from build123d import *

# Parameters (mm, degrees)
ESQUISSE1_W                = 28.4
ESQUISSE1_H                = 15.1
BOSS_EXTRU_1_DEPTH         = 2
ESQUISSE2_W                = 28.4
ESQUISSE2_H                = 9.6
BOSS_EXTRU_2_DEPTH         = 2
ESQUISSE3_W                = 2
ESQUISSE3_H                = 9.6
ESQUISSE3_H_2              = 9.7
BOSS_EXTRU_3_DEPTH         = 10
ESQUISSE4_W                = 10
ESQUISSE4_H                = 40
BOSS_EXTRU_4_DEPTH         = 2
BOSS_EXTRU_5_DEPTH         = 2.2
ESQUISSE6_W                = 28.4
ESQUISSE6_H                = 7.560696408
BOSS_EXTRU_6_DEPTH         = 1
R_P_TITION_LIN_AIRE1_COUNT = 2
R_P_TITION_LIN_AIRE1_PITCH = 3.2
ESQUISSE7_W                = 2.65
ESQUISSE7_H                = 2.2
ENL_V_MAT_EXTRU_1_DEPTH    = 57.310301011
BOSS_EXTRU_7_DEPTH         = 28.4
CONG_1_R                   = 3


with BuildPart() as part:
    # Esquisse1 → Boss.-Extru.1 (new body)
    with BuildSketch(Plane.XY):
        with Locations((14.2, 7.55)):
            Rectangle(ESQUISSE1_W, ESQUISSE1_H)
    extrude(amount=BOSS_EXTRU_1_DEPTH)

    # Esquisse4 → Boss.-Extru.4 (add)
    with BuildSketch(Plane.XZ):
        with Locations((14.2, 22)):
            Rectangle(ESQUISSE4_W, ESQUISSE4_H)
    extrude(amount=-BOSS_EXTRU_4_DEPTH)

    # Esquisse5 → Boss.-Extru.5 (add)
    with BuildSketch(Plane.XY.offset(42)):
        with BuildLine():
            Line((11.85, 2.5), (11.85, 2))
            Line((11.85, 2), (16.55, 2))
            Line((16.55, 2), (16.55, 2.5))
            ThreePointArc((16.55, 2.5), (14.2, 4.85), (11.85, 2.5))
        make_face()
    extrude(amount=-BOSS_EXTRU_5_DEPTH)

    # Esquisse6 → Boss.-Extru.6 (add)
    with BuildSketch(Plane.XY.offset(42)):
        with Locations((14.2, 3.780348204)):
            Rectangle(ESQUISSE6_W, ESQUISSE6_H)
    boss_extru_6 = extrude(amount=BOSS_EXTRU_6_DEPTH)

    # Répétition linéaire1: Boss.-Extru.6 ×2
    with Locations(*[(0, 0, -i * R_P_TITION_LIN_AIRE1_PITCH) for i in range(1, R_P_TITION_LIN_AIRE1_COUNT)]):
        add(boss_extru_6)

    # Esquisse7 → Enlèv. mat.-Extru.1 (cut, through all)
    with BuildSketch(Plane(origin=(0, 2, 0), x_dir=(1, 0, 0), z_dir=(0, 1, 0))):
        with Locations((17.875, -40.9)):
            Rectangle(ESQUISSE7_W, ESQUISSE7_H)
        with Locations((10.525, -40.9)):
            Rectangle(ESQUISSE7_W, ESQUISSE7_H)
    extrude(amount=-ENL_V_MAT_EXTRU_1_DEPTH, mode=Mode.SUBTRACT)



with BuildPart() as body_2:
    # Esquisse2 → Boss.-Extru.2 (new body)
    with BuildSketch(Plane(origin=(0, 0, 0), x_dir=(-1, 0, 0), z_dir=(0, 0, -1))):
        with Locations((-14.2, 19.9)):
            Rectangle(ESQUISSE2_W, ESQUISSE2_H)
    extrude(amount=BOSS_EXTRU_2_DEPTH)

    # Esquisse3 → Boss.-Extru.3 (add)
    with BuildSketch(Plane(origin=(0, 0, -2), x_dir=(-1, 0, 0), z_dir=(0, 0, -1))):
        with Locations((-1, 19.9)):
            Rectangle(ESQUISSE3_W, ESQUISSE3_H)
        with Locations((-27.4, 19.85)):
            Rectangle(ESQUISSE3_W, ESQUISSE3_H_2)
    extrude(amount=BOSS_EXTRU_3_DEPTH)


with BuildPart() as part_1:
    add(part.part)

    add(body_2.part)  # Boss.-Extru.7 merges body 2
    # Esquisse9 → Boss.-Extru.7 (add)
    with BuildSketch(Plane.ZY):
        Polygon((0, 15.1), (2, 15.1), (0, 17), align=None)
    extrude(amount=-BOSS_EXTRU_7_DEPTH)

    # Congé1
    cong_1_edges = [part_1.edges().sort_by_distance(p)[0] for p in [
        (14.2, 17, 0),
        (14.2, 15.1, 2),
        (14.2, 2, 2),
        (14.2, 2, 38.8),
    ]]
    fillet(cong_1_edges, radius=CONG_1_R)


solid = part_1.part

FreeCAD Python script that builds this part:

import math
import FreeCAD as App
import Part
import Sketcher

V = App.Vector


def edges_at(feature, points):
    """Names of the edges that pass closest to the given points."""
    edges = feature.Shape.Edges
    near = lambda p: min(range(len(edges)), key=lambda i: edges[i].distToShape(Part.Vertex(*p))[0])
    return sorted({f"Edge{near(p) + 1}" for p in points})


def add_polygon(sketch, points):
    """Adds a closed chain of lines whose ends are joined by coincident constraints."""
    first, n = sketch.GeometryCount, len(points)
    for a, b in zip(points, points[1:] + points[:1]):
        sketch.addGeometry(Part.LineSegment(App.Vector(*a, 0), App.Vector(*b, 0)), False)
    for i in range(n):
        sketch.addConstraint(Sketcher.Constraint("Coincident", first + i, 2, first + (i + 1) % n, 1))

doc = App.newDocument("Part")
body = doc.addObject("PartDesign::Body", "Body")

# Sketch on XY plane
sketch1 = body.newObject("Sketcher::SketchObject", "Sketch")
sketch1.AttachmentSupport = (doc.getObject("XY_Plane"), [""])
sketch1.MapMode = "FlatFace"
add_polygon(sketch1, [(0, 15), (0, 0), (28, 0), (28, 15)])  # lines 0-3
sketch1.addConstraint([
    Sketcher.Constraint("Vertical", 0),
    Sketcher.Constraint("Horizontal", 1),
    Sketcher.Constraint("Vertical", 2),
    Sketcher.Constraint("Horizontal", 3),
    Sketcher.Constraint("Coincident", 0, 2, -1, 1),
    Sketcher.Constraint("DistanceX", 1, 1, 1, 2, 28.4),
    Sketcher.Constraint("DistanceY", 0, 2, 0, 1, 15.1),
])
pad1 = body.newObject("PartDesign::Pad", "Pad")
pad1.Profile = sketch1
pad1.Length = 2

# Sketch on XZ plane
sketch2 = body.newObject("Sketcher::SketchObject", "Sketch001")
sketch2.AttachmentSupport = (doc.getObject("XZ_Plane"), [""])
sketch2.MapMode = "FlatFace"
add_polygon(sketch2, [(9, 42), (9, 2), (19, 2), (19, 42)])  # lines 0-3
sketch2.addConstraint([
    Sketcher.Constraint("Vertical", 0),
    Sketcher.Constraint("Horizontal", 1),
    Sketcher.Constraint("Vertical", 2),
    Sketcher.Constraint("Horizontal", 3),
    Sketcher.Constraint("DistanceX", 1, 1, 1, 2, 10.0),
    Sketcher.Constraint("DistanceY", 0, 2, 0, 1, 40.0),
    Sketcher.Constraint("DistanceY", -1, 1, 0, 2, 2.0),
    Sketcher.Constraint("DistanceX", -1, 1, 0, 2, 9.2),
])
pad2 = body.newObject("PartDesign::Pad", "Pad001")
pad2.Profile = sketch2
pad2.Length = 2
pad2.Reversed = True

# Sketch on XY plane
sketch3 = body.newObject("Sketcher::SketchObject", "Sketch002")
sketch3.AttachmentSupport = (doc.getObject("XY_Plane"), [""])
sketch3.MapMode = "FlatFace"
sketch3.AttachmentOffset = App.Placement(V(0, 0, 42), App.Rotation())
sketch3.addGeometry([
    Part.LineSegment(V(11.8, 2.5, 0), V(11.8, 2, 0)),
    Part.LineSegment(V(11.8, 2, 0), V(16.6, 2, 0)),
    Part.LineSegment(V(16.6, 2, 0), V(16.6, 2.5, 0)),
    Part.ArcOfCircle(Part.Circle(V(14.2, 2.5, 0), V(0, 0, 1), 2.4), math.radians(0), math.radians(180)),
], False)
sketch3.addConstraint([
    Sketcher.Constraint("Coincident", 0, 2, 1, 1),
    Sketcher.Constraint("Coincident", 1, 2, 2, 1),
    Sketcher.Constraint("Tangent", 2, 2, 3, 1),
    Sketcher.Constraint("Tangent", 3, 2, 0, 1),
    Sketcher.Constraint("Vertical", 0),
    Sketcher.Constraint("Horizontal", 1),
    Sketcher.Constraint("Vertical", 2),
    Sketcher.Constraint("Radius", 3, 2.35),
    Sketcher.Constraint("DistanceY", 0, 2, 0, 1, 0.5),
    Sketcher.Constraint("DistanceY", -1, 1, 0, 2, 2.0),
    Sketcher.Constraint("DistanceX", -1, 1, 3, 3, 14.2),
])
pad3 = body.newObject("PartDesign::Pad", "Pad002")
pad3.Profile = sketch3
pad3.Length = 2.2
pad3.Reversed = True

# Sketch on XY plane
sketch4 = body.newObject("Sketcher::SketchObject", "Sketch003")
sketch4.AttachmentSupport = (doc.getObject("XY_Plane"), [""])
sketch4.MapMode = "FlatFace"
sketch4.AttachmentOffset = App.Placement(V(0, 0, 42), App.Rotation())
add_polygon(sketch4, [(0, 8), (0, 0), (28, 0), (28, 8)])  # lines 0-3
sketch4.addConstraint([
    Sketcher.Constraint("Vertical", 0),
    Sketcher.Constraint("Horizontal", 1),
    Sketcher.Constraint("Vertical", 2),
    Sketcher.Constraint("Horizontal", 3),
    Sketcher.Constraint("Coincident", 0, 2, -1, 1),
    Sketcher.Constraint("DistanceX", 1, 1, 1, 2, 28.4),
    Sketcher.Constraint("DistanceY", 0, 2, 0, 1, 7.560696),
])
pad4 = body.newObject("PartDesign::Pad", "Pad003")
pad4.Profile = sketch4
pad4.Length = 1
doc.recompute()

linearpattern = body.newObject("PartDesign::LinearPattern", "LinearPattern")
linearpattern.Originals = [pad4]
linearpattern.Direction = (doc.getObject("Z_Axis"), [""])
linearpattern.Mode = "offset"
linearpattern.Offset = 3.2
linearpattern.Occurrences = 2
linearpattern.Reversed = True
body.Tip = linearpattern

# Sketch on XZ plane
sketch5 = body.newObject("Sketcher::SketchObject", "Sketch004")
sketch5.AttachmentSupport = (doc.getObject("XZ_Plane"), [""])
sketch5.MapMode = "FlatFace"
sketch5.AttachmentOffset = App.Placement(V(0, 0, -2), App.Rotation())
add_polygon(sketch5, [(16.6, 39.8), (16.6, 42), (19.2, 42), (19.2, 39.8)])  # lines 0-3
add_polygon(sketch5, [(9.2, 39.8), (9.2, 42), (11.8, 42), (11.8, 39.8)])  # lines 4-7
sketch5.addConstraint([
    Sketcher.Constraint("Vertical", 0),
    Sketcher.Constraint("Horizontal", 1),
    Sketcher.Constraint("Vertical", 2),
    Sketcher.Constraint("Horizontal", 3),
    Sketcher.Constraint("Vertical", 4),
    Sketcher.Constraint("Horizontal", 5),
    Sketcher.Constraint("Vertical", 6),
    Sketcher.Constraint("Horizontal", 7),
    Sketcher.Constraint("Horizontal", 1, 2, 4, 2),
    Sketcher.Constraint("Horizontal", 3, 2, 6, 2),
    Sketcher.Constraint("Equal", 3, 5),
    Sketcher.Constraint("DistanceY", 0, 1, 0, 2, 2.2),
    Sketcher.Constraint("DistanceY", -1, 1, 0, 2, 42.0),
    Sketcher.Constraint("DistanceX", 4, 2, 1, 2, 10.0),
    Sketcher.Constraint("DistanceX", 1, 1, 1, 2, 2.65),
    Sketcher.Constraint("DistanceX", -1, 1, 1, 2, 19.2),
])
pocket1 = body.newObject("PartDesign::Pocket", "Pocket")
pocket1.Profile = sketch5
pocket1.Type = "ThroughAll"
pocket1.Reversed = True
body2 = doc.addObject("PartDesign::Body", "Body001")

# Sketch on XY plane
sketch6 = body2.newObject("Sketcher::SketchObject", "Sketch005")
sketch6.AttachmentSupport = (doc.getObject("XY_Plane001"), [""])
sketch6.MapMode = "FlatFace"
add_polygon(sketch6, [(28, 25), (28, 15), (0, 15), (0, 25)])  # lines 0-3
sketch6.addConstraint([
    Sketcher.Constraint("Vertical", 0),
    Sketcher.Constraint("Horizontal", 1),
    Sketcher.Constraint("Vertical", 2),
    Sketcher.Constraint("Horizontal", 3),
    Sketcher.Constraint("PointOnObject", 1, 2, -2),
    Sketcher.Constraint("DistanceX", 1, 2, 1, 1, 28.4),
    Sketcher.Constraint("DistanceY", 0, 2, 0, 1, 9.6),
    Sketcher.Constraint("DistanceY", -1, 1, 0, 2, 15.1),
])
pad5 = body2.newObject("PartDesign::Pad", "Pad004")
pad5.Profile = sketch6
pad5.Length = 2
pad5.Reversed = True

# Sketch on XY plane
sketch7 = body2.newObject("Sketcher::SketchObject", "Sketch006")
sketch7.AttachmentSupport = (doc.getObject("XY_Plane001"), [""])
sketch7.MapMode = "FlatFace"
sketch7.AttachmentOffset = App.Placement(V(0, 0, -2), App.Rotation())
add_polygon(sketch7, [(2, 24.7), (2, 15.1), (0, 15.1), (0, 24.7)])  # lines 0-3
add_polygon(sketch7, [(28.4, 24.7), (28.4, 15), (26.4, 15), (26.4, 24.7)])  # lines 4-7
sketch7.addConstraint([
    Sketcher.Constraint("Vertical", 0),
    Sketcher.Constraint("Horizontal", 1),
    Sketcher.Constraint("Vertical", 2),
    Sketcher.Constraint("Horizontal", 3),
    Sketcher.Constraint("Vertical", 4),
    Sketcher.Constraint("Horizontal", 5),
    Sketcher.Constraint("Vertical", 6),
    Sketcher.Constraint("Horizontal", 7),
    Sketcher.Constraint("PointOnObject", 1, 2, -2),
    Sketcher.Constraint("Horizontal", 3, 2, 6, 2),
    Sketcher.Constraint("Equal", 3, 5),
    Sketcher.Constraint("DistanceX", 1, 2, 1, 1, 2.0),
    Sketcher.Constraint("DistanceY", 0, 2, 0, 1, 9.6),
    Sketcher.Constraint("DistanceY", 4, 2, 4, 1, 9.7),
    Sketcher.Constraint("DistanceY", -1, 1, 4, 2, 15.0),
    Sketcher.Constraint("DistanceX", -1, 1, 4, 2, 28.4),
])
pad6 = body2.newObject("PartDesign::Pad", "Pad005")
pad6.Profile = sketch7
pad6.Length = 10
pad6.Reversed = True
body.AllowCompound = True
doc.recompute()

boolean = body.newObject("PartDesign::Boolean", "Boolean")
boolean.Type = "Fuse"
boolean.addObjects([body2])

# Sketch on YZ plane
sketch8 = body.newObject("Sketcher::SketchObject", "Sketch007")
sketch8.AttachmentSupport = (doc.getObject("YZ_Plane"), [""])
sketch8.MapMode = "FlatFace"
add_polygon(sketch8, [(15.1, 0), (15.1, 2), (17, 0)])  # lines 0-2
sketch8.addConstraint([
    Sketcher.Constraint("Vertical", 0),
    Sketcher.Constraint("Horizontal", 2),
    Sketcher.Constraint("PointOnObject", 1, 2, -1),
    Sketcher.Constraint("DistanceY", 0, 1, 0, 2, 2.0),
    Sketcher.Constraint("DistanceX", 2, 2, 2, 1, 1.9),
    Sketcher.Constraint("DistanceX", -1, 1, 1, 2, 17.0),
])
pad7 = body.newObject("PartDesign::Pad", "Pad006")
pad7.Profile = sketch8
pad7.Length = 28.4
doc.recompute()

fillet = body.newObject("PartDesign::Fillet", "Fillet")
fillet.Base = (pad7, edges_at(pad7, [
    (14.2, 17, 0),
    (14.2, 15.1, 2),
    (14.2, 2, 2),
    (14.2, 2, 38.8),
]))
fillet.Radius = 3

doc.recompute()
